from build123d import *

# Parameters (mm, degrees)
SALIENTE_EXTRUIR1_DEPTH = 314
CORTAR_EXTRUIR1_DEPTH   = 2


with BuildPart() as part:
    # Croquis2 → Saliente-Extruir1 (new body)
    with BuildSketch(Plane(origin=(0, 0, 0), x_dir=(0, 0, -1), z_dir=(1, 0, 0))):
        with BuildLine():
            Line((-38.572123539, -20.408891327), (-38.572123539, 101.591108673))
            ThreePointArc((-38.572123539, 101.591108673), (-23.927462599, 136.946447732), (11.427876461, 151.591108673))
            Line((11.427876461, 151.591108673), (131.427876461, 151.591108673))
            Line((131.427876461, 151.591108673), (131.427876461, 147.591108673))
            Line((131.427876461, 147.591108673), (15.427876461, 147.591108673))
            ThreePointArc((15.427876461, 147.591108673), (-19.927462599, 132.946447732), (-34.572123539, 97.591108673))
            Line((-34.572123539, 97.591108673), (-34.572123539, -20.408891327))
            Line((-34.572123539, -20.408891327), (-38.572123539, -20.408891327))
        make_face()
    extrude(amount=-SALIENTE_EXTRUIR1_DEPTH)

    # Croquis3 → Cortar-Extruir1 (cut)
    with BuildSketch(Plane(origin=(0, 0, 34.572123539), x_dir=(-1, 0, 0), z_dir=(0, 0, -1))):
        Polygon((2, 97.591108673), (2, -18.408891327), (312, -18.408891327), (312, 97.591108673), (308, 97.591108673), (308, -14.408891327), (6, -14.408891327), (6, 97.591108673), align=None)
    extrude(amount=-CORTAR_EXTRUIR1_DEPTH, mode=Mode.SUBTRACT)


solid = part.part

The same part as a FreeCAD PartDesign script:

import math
import FreeCAD as App
import Part
import Sketcher
Q = App.Units.Quantity


def add_polygon(sketch, points):
    """Adds a closed chain of lines whose ends are joined by coincident constraints."""
    first, n = sketch.GeometryCount, len(points)
    for a, b in zip(points, points[1:] + points[:1]):
        sketch.addGeometry(Part.LineSegment(App.Vector(*a, 0), App.Vector(*b, 0)), False)
    for i in range(n):
        sketch.addConstraint(Sketcher.Constraint("Coincident", first + i, 2, first + (i + 1) % n, 1))

doc = App.newDocument("Part")
body = doc.addObject("PartDesign::Body", "Body")

sketch1 = body.newObject("Sketcher::SketchObject", "Sketch")
sketch1.AttachmentSupport = (doc.getObject("YZ_Plane"), [""])
sketch1.MapMode = "FlatFace"
sketch1.addGeometry(Part.LineSegment(App.Vector(101.6, 38.6, 0), App.Vector(-20.4, 38.6, 0)), False)
sketch1.addGeometry(Part.LineSegment(App.Vector(-20.4, 38.6, 0), App.Vector(-20.4, 34.6, 0)), False)
sketch1.addGeometry(Part.LineSegment(App.Vector(-20.4, 34.6, 0), App.Vector(97.6, 34.6, 0)), False)
sketch1.addGeometry(Part.ArcOfCircle(Part.Circle(App.Vector(97.6, -15.4, 0), App.Vector(0, 0, 1), 50), math.radians(0), math.radians(90)), False)
sketch1.addGeometry(Part.LineSegment(App.Vector(147.6, -15.4, 0), App.Vector(147.6, -131.4, 0)), False)
sketch1.addGeometry(Part.LineSegment(App.Vector(147.6, -131.4, 0), App.Vector(151.6, -131.4, 0)), False)
sketch1.addGeometry(Part.LineSegment(App.Vector(151.6, -131.4, 0), App.Vector(151.6, -11.4, 0)), False)
sketch1.addGeometry(Part.ArcOfCircle(Part.Circle(App.Vector(101.6, -11.4, 0), App.Vector(0, 0, 1), 50), math.radians(0), math.radians(90)), False)
sketch1.addConstraint(Sketcher.Constraint("Coincident", 0, 2, 1, 1))
sketch1.addConstraint(Sketcher.Constraint("Coincident", 1, 2, 2, 1))
sketch1.addConstraint(Sketcher.Constraint("Tangent", 2, 2, 3, 2))
sketch1.addConstraint(Sketcher.Constraint("Tangent", 3, 1, 4, 1))
sketch1.addConstraint(Sketcher.Constraint("Coincident", 4, 2, 5, 1))
sketch1.addConstraint(Sketcher.Constraint("Coincident", 5, 2, 6, 1))
sketch1.addConstraint(Sketcher.Constraint("Tangent", 6, 2, 7, 1))
sketch1.addConstraint(Sketcher.Constraint("Tangent", 7, 2, 0, 1))
sketch1.addConstraint(Sketcher.Constraint("Horizontal", 0))
sketch1.addConstraint(Sketcher.Constraint("Vertical", 1))
sketch1.addConstraint(Sketcher.Constraint("Horizontal", 2))
sketch1.addConstraint(Sketcher.Constraint("Vertical", 4))
sketch1.addConstraint(Sketcher.Constraint("Horizontal", 5))
sketch1.addConstraint(Sketcher.Constraint("Vertical", 6))
sketch1.addConstraint(Sketcher.Constraint("Equal", 3, 7))
sketch1.addConstraint(Sketcher.Constraint("Equal", 5, 1))
sketch1.addConstraint(Sketcher.Constraint("Radius", 3, Q("50 mm")))
sketch1.addConstraint(Sketcher.Constraint("DistanceX", 0, 2, 0, 1, Q("122 mm")))
sketch1.addConstraint(Sketcher.Constraint("DistanceX", 2, 1, 2, 2, Q("118 mm")))
sketch1.addConstraint(Sketcher.Constraint("DistanceY", 4, 2, 4, 1, Q("116 mm")))
sketch1.addConstraint(Sketcher.Constraint("DistanceX", -1, 1, 3, 3, Q("97.591109 mm")))
sketch1.addConstraint(Sketcher.Constraint("DistanceY", 3, 3, -1, 1, Q("15.427876 mm")))
pad1 = body.newObject("PartDesign::Pad", "Pad")
pad1.Profile = sketch1
pad1.Length = 314
pad1.Reversed = True

sketch2 = body.newObject("Sketcher::SketchObject", "Sketch001")
sketch2.AttachmentSupport = (doc.getObject("XY_Plane"), [""])
sketch2.MapMode = "FlatFace"
sketch2.AttachmentOffset = App.Placement(App.Vector(0, 0, 34.572124), App.Rotation())
add_polygon(sketch2, [(-2, 97.6), (-2, -18.4), (-312, -18.4), (-312, 97.6), (-308, 97.6), (-308, -14.4), (-6, -14.4), (-6, 97.6)])
sketch2.addConstraint(Sketcher.Constraint("Vertical", 0))
sketch2.addConstraint(Sketcher.Constraint("Horizontal", 1))
sketch2.addConstraint(Sketcher.Constraint("Vertical", 2))
sketch2.addConstraint(Sketcher.Constraint("Horizontal", 3))
sketch2.addConstraint(Sketcher.Constraint("Vertical", 4))
sketch2.addConstraint(Sketcher.Constraint("Horizontal", 5))
sketch2.addConstraint(Sketcher.Constraint("Vertical", 6))
sketch2.addConstraint(Sketcher.Constraint("Horizontal", 7))
sketch2.addConstraint(Sketcher.Constraint("Horizontal", 3, 2, 6, 2))
sketch2.addConstraint(Sketcher.Constraint("Equal", 3, 7))
sketch2.addConstraint(Sketcher.Constraint("DistanceX", 1, 2, 1, 1, Q("310 mm")))
sketch2.addConstraint(Sketcher.Constraint("DistanceX", 3, 1, 3, 2, Q("4 mm")))
sketch2.addConstraint(Sketcher.Constraint("DistanceY", 0, 2, 0, 1, Q("116 mm")))
sketch2.addConstraint(Sketcher.Constraint("DistanceY", 4, 2, 4, 1, Q("112 mm")))
sketch2.addConstraint(Sketcher.Constraint("DistanceX", 0, 2, -1, 1, Q("2 mm")))
sketch2.addConstraint(Sketcher.Constraint("DistanceY", 0, 2, -1, 1, Q("18.408891 mm")))
pocket1 = body.newObject("PartDesign::Pocket", "Pocket")
pocket1.Profile = sketch2
pocket1.Length = 2
pocket1.Reversed = True

doc.recompute()
